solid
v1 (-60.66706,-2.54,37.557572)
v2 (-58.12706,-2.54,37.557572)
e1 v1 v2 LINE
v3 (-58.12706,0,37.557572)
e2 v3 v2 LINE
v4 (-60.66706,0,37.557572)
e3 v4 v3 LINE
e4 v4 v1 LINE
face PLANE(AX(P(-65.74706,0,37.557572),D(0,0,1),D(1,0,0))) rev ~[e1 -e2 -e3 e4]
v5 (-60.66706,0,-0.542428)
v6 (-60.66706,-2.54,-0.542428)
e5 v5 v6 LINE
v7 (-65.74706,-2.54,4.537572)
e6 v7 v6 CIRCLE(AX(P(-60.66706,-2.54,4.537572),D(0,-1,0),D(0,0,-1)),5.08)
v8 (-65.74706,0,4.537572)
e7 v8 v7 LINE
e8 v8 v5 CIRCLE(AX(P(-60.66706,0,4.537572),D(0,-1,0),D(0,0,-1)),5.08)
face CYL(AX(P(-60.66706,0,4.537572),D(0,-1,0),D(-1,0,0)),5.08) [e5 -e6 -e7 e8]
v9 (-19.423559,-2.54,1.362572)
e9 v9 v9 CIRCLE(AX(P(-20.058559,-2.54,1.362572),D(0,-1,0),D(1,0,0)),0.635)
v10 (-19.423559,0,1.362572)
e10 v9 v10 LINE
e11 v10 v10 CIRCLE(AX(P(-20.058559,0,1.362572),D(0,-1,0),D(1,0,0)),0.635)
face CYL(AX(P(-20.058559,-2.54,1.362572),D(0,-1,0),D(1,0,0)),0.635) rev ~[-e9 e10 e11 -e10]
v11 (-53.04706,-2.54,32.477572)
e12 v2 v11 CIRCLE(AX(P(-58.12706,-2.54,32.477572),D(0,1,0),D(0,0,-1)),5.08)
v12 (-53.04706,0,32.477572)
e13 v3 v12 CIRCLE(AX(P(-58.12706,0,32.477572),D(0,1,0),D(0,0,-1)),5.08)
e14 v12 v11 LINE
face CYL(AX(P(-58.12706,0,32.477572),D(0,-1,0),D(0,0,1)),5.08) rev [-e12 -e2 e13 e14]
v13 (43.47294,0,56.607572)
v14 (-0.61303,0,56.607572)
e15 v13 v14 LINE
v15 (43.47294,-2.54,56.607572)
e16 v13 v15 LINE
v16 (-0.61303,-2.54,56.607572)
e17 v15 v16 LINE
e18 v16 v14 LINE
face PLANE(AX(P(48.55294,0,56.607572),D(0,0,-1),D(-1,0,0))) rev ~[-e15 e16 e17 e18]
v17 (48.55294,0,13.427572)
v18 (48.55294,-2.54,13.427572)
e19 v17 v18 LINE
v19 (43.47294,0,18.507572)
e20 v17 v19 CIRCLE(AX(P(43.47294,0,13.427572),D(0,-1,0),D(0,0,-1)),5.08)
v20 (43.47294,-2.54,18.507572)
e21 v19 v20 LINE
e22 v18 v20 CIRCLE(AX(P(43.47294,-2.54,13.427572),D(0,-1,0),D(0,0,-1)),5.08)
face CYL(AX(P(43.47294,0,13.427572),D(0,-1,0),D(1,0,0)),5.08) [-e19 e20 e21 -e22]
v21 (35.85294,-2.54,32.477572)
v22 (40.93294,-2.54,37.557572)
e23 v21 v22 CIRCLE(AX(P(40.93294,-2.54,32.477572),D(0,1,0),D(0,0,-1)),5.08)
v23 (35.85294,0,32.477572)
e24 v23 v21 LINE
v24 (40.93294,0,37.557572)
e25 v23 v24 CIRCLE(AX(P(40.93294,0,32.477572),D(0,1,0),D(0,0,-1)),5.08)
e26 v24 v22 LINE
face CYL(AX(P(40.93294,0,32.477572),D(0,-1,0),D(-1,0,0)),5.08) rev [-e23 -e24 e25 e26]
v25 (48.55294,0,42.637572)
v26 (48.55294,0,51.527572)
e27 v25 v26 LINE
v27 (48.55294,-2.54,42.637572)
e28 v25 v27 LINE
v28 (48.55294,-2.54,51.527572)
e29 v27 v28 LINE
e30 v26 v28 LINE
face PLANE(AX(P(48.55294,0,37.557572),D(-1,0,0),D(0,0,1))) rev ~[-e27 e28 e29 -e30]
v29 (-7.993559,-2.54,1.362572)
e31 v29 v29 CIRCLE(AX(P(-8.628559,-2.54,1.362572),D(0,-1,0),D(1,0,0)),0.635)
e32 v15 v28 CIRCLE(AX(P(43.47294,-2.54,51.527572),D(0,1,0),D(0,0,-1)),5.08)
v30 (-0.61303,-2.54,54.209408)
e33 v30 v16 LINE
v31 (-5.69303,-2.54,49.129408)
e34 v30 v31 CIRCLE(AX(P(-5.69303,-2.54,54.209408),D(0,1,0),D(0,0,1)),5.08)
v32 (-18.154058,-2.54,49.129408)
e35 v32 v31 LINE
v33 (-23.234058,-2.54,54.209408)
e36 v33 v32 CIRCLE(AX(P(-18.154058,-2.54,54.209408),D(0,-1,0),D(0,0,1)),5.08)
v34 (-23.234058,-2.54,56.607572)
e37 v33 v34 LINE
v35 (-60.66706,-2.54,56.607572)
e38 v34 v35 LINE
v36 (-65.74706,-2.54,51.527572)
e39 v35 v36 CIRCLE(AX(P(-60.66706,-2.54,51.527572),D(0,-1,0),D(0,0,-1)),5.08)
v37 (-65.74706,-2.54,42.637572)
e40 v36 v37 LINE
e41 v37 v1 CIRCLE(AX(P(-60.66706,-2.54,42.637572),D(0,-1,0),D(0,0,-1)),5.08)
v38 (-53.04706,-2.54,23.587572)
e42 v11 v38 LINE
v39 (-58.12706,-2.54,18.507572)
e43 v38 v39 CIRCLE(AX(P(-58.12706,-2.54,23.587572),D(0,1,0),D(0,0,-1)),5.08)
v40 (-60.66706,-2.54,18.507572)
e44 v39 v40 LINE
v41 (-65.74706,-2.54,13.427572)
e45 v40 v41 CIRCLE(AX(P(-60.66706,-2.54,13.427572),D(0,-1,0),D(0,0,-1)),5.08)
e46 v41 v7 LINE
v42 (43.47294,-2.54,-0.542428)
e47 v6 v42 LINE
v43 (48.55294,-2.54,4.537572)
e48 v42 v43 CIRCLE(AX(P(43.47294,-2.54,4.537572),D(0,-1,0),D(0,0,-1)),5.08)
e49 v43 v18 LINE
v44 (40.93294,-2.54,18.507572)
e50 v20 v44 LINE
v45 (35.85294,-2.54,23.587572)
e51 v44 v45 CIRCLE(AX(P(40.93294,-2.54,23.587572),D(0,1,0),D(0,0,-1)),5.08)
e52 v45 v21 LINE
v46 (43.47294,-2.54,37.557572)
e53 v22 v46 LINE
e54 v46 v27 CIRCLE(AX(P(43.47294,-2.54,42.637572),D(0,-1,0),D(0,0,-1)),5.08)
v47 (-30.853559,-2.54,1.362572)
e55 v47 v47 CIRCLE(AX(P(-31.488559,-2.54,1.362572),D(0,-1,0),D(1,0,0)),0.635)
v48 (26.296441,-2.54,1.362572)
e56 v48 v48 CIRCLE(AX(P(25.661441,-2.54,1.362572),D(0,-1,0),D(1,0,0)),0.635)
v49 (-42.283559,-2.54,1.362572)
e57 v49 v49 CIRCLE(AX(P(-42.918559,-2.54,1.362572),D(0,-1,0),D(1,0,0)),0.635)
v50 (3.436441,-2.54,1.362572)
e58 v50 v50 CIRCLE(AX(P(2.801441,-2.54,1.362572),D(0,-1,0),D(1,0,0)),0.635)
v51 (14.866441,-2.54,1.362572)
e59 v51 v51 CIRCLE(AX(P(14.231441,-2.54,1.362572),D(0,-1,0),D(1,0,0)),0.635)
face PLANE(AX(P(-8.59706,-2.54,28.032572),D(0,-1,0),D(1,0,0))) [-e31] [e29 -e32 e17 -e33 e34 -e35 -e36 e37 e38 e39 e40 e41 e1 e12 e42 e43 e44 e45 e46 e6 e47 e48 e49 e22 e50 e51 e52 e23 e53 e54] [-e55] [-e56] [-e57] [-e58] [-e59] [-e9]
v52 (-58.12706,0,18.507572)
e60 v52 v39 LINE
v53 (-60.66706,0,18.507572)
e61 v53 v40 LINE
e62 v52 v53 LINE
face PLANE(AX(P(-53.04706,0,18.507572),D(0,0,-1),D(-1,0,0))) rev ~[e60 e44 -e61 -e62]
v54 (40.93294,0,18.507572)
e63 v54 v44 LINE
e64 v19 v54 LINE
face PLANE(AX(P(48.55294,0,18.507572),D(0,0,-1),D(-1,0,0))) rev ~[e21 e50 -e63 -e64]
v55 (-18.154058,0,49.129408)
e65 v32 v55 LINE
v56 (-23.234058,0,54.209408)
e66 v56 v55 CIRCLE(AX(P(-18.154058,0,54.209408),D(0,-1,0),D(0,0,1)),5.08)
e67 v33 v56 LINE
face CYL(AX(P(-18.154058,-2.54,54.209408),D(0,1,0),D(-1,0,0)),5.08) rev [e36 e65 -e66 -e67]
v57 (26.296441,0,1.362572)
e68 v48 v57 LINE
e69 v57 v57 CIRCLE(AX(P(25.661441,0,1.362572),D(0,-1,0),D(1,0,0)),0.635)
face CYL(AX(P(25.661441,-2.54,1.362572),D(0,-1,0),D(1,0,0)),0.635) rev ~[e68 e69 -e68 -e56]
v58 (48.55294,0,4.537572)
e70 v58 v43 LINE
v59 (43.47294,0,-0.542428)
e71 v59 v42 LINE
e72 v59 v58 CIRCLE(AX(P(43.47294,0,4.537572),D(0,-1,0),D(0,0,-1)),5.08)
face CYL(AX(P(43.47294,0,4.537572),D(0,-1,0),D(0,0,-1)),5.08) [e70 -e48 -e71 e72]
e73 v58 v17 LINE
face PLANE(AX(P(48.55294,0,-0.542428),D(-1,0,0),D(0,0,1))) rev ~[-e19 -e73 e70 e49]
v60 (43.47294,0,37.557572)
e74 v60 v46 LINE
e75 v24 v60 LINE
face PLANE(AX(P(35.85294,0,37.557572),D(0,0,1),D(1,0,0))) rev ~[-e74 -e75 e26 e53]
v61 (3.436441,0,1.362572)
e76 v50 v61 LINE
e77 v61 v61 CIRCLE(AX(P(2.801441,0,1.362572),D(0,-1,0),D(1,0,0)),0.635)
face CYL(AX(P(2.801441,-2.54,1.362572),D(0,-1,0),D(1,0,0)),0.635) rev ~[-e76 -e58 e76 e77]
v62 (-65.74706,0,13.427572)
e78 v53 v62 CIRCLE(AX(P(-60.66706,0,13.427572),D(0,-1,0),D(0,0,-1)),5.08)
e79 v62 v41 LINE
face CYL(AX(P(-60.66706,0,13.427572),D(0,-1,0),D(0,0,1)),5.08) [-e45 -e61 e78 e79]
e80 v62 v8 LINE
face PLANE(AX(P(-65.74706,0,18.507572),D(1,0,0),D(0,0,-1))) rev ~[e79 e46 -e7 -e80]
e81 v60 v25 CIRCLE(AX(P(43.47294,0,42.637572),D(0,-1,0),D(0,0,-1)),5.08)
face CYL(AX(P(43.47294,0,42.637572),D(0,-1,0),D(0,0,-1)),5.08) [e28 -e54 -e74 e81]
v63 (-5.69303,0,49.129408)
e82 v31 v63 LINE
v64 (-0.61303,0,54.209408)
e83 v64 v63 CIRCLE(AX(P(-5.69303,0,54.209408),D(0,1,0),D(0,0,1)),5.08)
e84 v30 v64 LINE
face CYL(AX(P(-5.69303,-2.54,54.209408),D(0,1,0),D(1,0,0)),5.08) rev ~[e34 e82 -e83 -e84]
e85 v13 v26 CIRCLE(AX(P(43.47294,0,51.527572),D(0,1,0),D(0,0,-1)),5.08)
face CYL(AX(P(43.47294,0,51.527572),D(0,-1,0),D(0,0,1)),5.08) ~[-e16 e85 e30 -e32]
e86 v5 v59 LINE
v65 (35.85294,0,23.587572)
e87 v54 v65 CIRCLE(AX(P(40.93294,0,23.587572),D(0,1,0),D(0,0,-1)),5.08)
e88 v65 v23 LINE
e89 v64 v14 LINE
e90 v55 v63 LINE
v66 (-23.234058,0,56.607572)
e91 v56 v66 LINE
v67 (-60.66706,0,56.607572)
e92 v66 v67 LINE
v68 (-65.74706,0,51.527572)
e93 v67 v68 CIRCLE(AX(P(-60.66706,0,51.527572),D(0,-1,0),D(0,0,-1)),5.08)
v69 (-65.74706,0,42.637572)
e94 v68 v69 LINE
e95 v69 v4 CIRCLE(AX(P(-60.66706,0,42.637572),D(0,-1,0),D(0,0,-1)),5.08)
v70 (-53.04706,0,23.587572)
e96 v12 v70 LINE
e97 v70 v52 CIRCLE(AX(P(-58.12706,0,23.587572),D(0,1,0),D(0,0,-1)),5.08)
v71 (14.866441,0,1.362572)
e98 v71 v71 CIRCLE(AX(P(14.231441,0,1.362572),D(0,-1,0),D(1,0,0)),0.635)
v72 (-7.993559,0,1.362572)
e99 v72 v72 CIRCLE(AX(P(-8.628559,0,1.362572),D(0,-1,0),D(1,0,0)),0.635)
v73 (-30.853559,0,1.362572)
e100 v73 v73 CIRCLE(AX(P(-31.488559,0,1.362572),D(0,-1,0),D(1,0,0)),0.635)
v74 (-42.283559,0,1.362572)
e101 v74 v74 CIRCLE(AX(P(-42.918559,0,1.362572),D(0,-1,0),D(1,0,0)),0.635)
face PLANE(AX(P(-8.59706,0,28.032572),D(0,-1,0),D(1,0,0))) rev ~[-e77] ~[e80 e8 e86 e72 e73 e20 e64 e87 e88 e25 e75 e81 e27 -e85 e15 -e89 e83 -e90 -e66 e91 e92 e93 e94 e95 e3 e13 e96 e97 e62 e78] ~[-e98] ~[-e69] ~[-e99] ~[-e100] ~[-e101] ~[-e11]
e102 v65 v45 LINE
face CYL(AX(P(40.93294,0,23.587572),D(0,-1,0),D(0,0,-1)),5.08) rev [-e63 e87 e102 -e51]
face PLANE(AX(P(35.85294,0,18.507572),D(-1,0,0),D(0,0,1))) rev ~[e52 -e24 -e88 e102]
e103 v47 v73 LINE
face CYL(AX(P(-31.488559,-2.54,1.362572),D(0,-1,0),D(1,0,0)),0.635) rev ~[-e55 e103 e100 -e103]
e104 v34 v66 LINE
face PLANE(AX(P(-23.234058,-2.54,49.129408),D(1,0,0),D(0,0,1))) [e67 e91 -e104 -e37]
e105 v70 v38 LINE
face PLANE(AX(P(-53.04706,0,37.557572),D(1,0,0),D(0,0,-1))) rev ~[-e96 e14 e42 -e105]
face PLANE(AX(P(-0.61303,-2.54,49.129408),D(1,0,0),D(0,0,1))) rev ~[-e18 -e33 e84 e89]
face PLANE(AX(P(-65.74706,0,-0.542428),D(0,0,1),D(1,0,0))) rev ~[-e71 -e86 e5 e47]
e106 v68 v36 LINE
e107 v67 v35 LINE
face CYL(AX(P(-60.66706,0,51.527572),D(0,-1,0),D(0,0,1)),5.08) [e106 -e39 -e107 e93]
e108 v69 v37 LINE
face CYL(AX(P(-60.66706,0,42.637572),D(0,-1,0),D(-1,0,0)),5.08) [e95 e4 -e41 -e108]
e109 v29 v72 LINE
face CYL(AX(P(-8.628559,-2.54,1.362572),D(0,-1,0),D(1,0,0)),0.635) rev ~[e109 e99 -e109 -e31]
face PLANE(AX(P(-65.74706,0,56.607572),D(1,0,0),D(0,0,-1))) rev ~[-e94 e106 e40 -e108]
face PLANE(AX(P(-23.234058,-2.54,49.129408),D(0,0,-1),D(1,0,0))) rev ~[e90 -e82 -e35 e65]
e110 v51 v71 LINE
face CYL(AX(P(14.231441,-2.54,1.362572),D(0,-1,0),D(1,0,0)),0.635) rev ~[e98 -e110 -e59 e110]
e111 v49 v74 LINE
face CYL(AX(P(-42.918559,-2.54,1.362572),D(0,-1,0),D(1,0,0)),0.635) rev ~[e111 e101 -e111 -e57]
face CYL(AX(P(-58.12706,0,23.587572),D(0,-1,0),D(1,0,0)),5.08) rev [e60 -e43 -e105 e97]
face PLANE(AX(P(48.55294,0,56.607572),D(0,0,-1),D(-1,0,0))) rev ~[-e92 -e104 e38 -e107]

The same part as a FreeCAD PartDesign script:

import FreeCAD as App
import Part
import Sketcher
Q = App.Units.Quantity


def edges_at(feature, points):
    """Names of the edges that pass closest to the given points."""
    edges = feature.Shape.Edges
    near = lambda p: min(range(len(edges)), key=lambda i: edges[i].distToShape(Part.Vertex(*p))[0])
    return sorted({f"Edge{near(p) + 1}" for p in points})

doc = App.newDocument("Part")
body = doc.addObject("PartDesign::Body", "Body")

sketch1 = body.newObject("Sketcher::SketchObject", "Sketch")
sketch1.AttachmentSupport = (doc.getObject("XZ_Plane"), [""])
sketch1.MapMode = "FlatFace"
sketch1.addGeometry(Part.LineSegment(App.Vector(49, 57, 0), App.Vector(-66, 57, 0)), False)
sketch1.addGeometry(Part.LineSegment(App.Vector(-66, 57, 0), App.Vector(-66, 38, 0)), False)
sketch1.addGeometry(Part.LineSegment(App.Vector(-66, 38, 0), App.Vector(-53, 38, 0)), False)
sketch1.addGeometry(Part.LineSegment(App.Vector(-53, 38, 0), App.Vector(-53, 19, 0)), False)
sketch1.addGeometry(Part.LineSegment(App.Vector(-53, 19, 0), App.Vector(-66, 19, 0)), False)
sketch1.addGeometry(Part.LineSegment(App.Vector(-66, 19, 0), App.Vector(-66, -1, 0)), False)
sketch1.addGeometry(Part.LineSegment(App.Vector(-66, -1, 0), App.Vector(49, -1, 0)), False)
sketch1.addGeometry(Part.LineSegment(App.Vector(49, -1, 0), App.Vector(49, 19, 0)), False)
sketch1.addGeometry(Part.LineSegment(App.Vector(49, 19, 0), App.Vector(36, 19, 0)), False)
sketch1.addGeometry(Part.LineSegment(App.Vector(36, 19, 0), App.Vector(36, 38, 0)), False)
sketch1.addGeometry(Part.LineSegment(App.Vector(36, 38, 0), App.Vector(49, 38, 0)), False)
sketch1.addGeometry(Part.LineSegment(App.Vector(49, 38, 0), App.Vector(49, 57, 0)), False)
sketch1.addConstraint(Sketcher.Constraint("Coincident", 0, 2, 1, 1))
sketch1.addConstraint(Sketcher.Constraint("Coincident", 1, 2, 2, 1))
sketch1.addConstraint(Sketcher.Constraint("Coincident", 2, 2, 3, 1))
sketch1.addConstraint(Sketcher.Constraint("Coincident", 3, 2, 4, 1))
sketch1.addConstraint(Sketcher.Constraint("Coincident", 4, 2, 5, 1))
sketch1.addConstraint(Sketcher.Constraint("Coincident", 5, 2, 6, 1))
sketch1.addConstraint(Sketcher.Constraint("Coincident", 6, 2, 7, 1))
sketch1.addConstraint(Sketcher.Constraint("Coincident", 7, 2, 8, 1))
sketch1.addConstraint(Sketcher.Constraint("Coincident", 8, 2, 9, 1))
sketch1.addConstraint(Sketcher.Constraint("Coincident", 9, 2, 10, 1))
sketch1.addConstraint(Sketcher.Constraint("Coincident", 10, 2, 11, 1))
sketch1.addConstraint(Sketcher.Constraint("Coincident", 11, 2, 0, 1))
sketch1.addConstraint(Sketcher.Constraint("Horizontal", 0))
sketch1.addConstraint(Sketcher.Constraint("Vertical", 1))
sketch1.addConstraint(Sketcher.Constraint("Horizontal", 2))
sketch1.addConstraint(Sketcher.Constraint("Vertical", 3))
sketch1.addConstraint(Sketcher.Constraint("Horizontal", 4))
sketch1.addConstraint(Sketcher.Constraint("Vertical", 5))
sketch1.addConstraint(Sketcher.Constraint("Horizontal", 6))
sketch1.addConstraint(Sketcher.Constraint("Vertical", 7))
sketch1.addConstraint(Sketcher.Constraint("Horizontal", 8))
sketch1.addConstraint(Sketcher.Constraint("Vertical", 9))
sketch1.addConstraint(Sketcher.Constraint("Horizontal", 10))
sketch1.addConstraint(Sketcher.Constraint("Vertical", 11))
sketch1.addConstraint(Sketcher.Constraint("Horizontal", 4, 2, 7, 2))
sketch1.addConstraint(Sketcher.Constraint("Horizontal", 2, 2, 9, 2))
sketch1.addConstraint(Sketcher.Constraint("Vertical", 1, 2, 4, 2))
sketch1.addConstraint(Sketcher.Constraint("Vertical", 7, 2, 10, 2))
sketch1.addConstraint(Sketcher.Constraint("Equal", 4, 8))
sketch1.addConstraint(Sketcher.Constraint("Equal", 1, 3))
sketch1.addConstraint(Sketcher.Constraint("Equal", 3, 5))
sketch1.addConstraint(Sketcher.Constraint("DistanceX", 0, 2, 0, 1, Q("4.5 in")))
sketch1.addConstraint(Sketcher.Constraint("DistanceX", 2, 1, 2, 2, Q("0.5 in")))
sketch1.addConstraint(Sketcher.Constraint("DistanceY", 1, 2, 1, 1, Q("0.75 in")))
sketch1.addConstraint(Sketcher.Constraint("DistanceX", 0, 2, -1, 1, Q("65.74706 mm")))
sketch1.addConstraint(Sketcher.Constraint("DistanceY", -1, 1, 0, 2, Q("56.607572 mm")))
pad1 = body.newObject("PartDesign::Pad", "Pad")
pad1.Profile = sketch1
pad1.Length = Q("0.1 in")
doc.recompute()

fillet = body.newObject("PartDesign::Fillet", "Fillet")
fillet.Base = (pad1, edges_at(pad1, [
    (-65.747, -1.27, 56.608),
    (-65.747, -1.27, 37.558),
    (-53.047, -1.27, 37.558),
    (-53.047, -1.27, 18.508),
    (-65.747, -1.27, 18.508),
    (-65.747, -1.27, -0.542),
    (48.553, -1.27, -0.542),
    (35.853, -1.27, 18.508),
    (48.553, -1.27, 18.508),
    (35.853, -1.27, 37.558),
    (48.553, -1.27, 37.558),
    (48.553, -1.27, 56.608),
]))
fillet.Radius = Q("0.2 in")

sketch2 = body.newObject("Sketcher::SketchObject", "Sketch001")
sketch2.AttachmentSupport = (doc.getObject("XZ_Plane"), [""])
sketch2.MapMode = "FlatFace"
sketch2.AttachmentOffset = App.Placement(App.Vector(0, 0, 0.1 * 25.4), App.Rotation())
sketch2.addGeometry(Part.Circle(App.Vector(-42.9, 1.4, 0), App.Vector(0, 0, 1), 0.6), False)
sketch2.addGeometry(Part.Circle(App.Vector(-31.5, 1.4, 0), App.Vector(0, 0, 1), 0.6), False)
sketch2.addGeometry(Part.Circle(App.Vector(-20.1, 1.4, 0), App.Vector(0, 0, 1), 0.6), False)
sketch2.addGeometry(Part.Circle(App.Vector(-8.6, 1.4, 0), App.Vector(0, 0, 1), 0.6), False)
sketch2.addGeometry(Part.Circle(App.Vector(2.8, 1.4, 0), App.Vector(0, 0, 1), 0.6), False)
sketch2.addGeometry(Part.Circle(App.Vector(14.2, 1.4, 0), App.Vector(0, 0, 1), 0.6), False)
sketch2.addGeometry(Part.Circle(App.Vector(25.7, 1.4, 0), App.Vector(0, 0, 1), 0.6), False)
sketch2.addConstraint(Sketcher.Constraint("Equal", 0, 1))
sketch2.addConstraint(Sketcher.Constraint("Equal", 1, 2))
sketch2.addConstraint(Sketcher.Constraint("Equal", 2, 3))
sketch2.addConstraint(Sketcher.Constraint("Equal", 3, 4))
sketch2.addConstraint(Sketcher.Constraint("Equal", 4, 5))
sketch2.addConstraint(Sketcher.Constraint("Equal", 5, 6))
sketch2.addConstraint(Sketcher.Constraint("Horizontal", 0, 3, 1, 3))
sketch2.addConstraint(Sketcher.Constraint("Horizontal", 1, 3, 2, 3))
sketch2.addConstraint(Sketcher.Constraint("Horizontal", 2, 3, 3, 3))
sketch2.addConstraint(Sketcher.Constraint("Horizontal", 3, 3, 4, 3))
sketch2.addConstraint(Sketcher.Constraint("Horizontal", 4, 3, 5, 3))
sketch2.addConstraint(Sketcher.Constraint("Horizontal", 5, 3, 6, 3))
sketch2.addConstraint(Sketcher.Constraint("Diameter", 0, Q("0.05 in")))
sketch2.addConstraint(Sketcher.Constraint("DistanceX", 0, 3, 2, 3, Q("0.9 in")))
sketch2.addConstraint(Sketcher.Constraint("DistanceX", 1, 3, 3, 3, Q("0.9 in")))
sketch2.addConstraint(Sketcher.Constraint("DistanceX", 2, 3, 4, 3, Q("0.9 in")))
sketch2.addConstraint(Sketcher.Constraint("DistanceX", 3, 3, 5, 3, Q("0.9 in")))
sketch2.addConstraint(Sketcher.Constraint("DistanceX", 4, 3, 6, 3, Q("0.9 in")))
sketch2.addConstraint(Sketcher.Constraint("DistanceX", 0, 3, 1, 3, Q("0.45 in")))
sketch2.addConstraint(Sketcher.Constraint("DistanceX", 0, 3, -1, 1, Q("42.918559 mm")))
sketch2.addConstraint(Sketcher.Constraint("DistanceY", -1, 1, 0, 3, Q("1.362572 mm")))
pocket1 = body.newObject("PartDesign::Pocket", "Pocket")
pocket1.Profile = sketch2
pocket1.Length = Q("1 in")

sketch3 = body.newObject("Sketcher::SketchObject", "Sketch002")
sketch3.AttachmentSupport = (doc.getObject("XZ_Plane"), [""])
sketch3.MapMode = "FlatFace"
sketch3.AttachmentOffset = App.Placement(App.Vector(0, 0, 0.1 * 25.4), App.Rotation())
sketch3.addGeometry(Part.LineSegment(App.Vector(-23, 57, 0), App.Vector(-23, 49, 0)), False)
sketch3.addGeometry(Part.LineSegment(App.Vector(-23, 49, 0), App.Vector(-1, 49, 0)), False)
sketch3.addGeometry(Part.LineSegment(App.Vector(-1, 49, 0), App.Vector(-1, 57, 0)), False)
sketch3.addGeometry(Part.LineSegment(App.Vector(-1, 57, 0), App.Vector(-23, 57, 0)), False)
sketch3.addConstraint(Sketcher.Constraint("Coincident", 0, 2, 1, 1))
sketch3.addConstraint(Sketcher.Constraint("Coincident", 1, 2, 2, 1))
sketch3.addConstraint(Sketcher.Constraint("Coincident", 2, 2, 3, 1))
sketch3.addConstraint(Sketcher.Constraint("Coincident", 3, 2, 0, 1))
sketch3.addConstraint(Sketcher.Constraint("Vertical", 0))
sketch3.addConstraint(Sketcher.Constraint("Horizontal", 1))
sketch3.addConstraint(Sketcher.Constraint("Vertical", 2))
sketch3.addConstraint(Sketcher.Constraint("Horizontal", 3))
sketch3.addConstraint(Sketcher.Constraint("DistanceX", 1, 1, 1, 2, Q("22.621028 mm")))
sketch3.addConstraint(Sketcher.Constraint("DistanceY", 0, 2, 0, 1, Q("7.478164 mm")))
sketch3.addConstraint(Sketcher.Constraint("DistanceX", 0, 2, -1, 1, Q("23.234058 mm")))
sketch3.addConstraint(Sketcher.Constraint("DistanceY", -1, 1, 2, 2, Q("56.607572 mm")))
pocket2 = body.newObject("PartDesign::Pocket", "Pocket001")
pocket2.Profile = sketch3
pocket2.Length = Q("1 in")
doc.recompute()

fillet2 = body.newObject("PartDesign::Fillet", "Fillet001")
fillet2.Base = (pocket2, edges_at(pocket2, [(-23.234, -1.27, 49.129), (-0.613, -1.27, 49.129)]))
fillet2.Radius = Q("0.2 in")

doc.recompute()
